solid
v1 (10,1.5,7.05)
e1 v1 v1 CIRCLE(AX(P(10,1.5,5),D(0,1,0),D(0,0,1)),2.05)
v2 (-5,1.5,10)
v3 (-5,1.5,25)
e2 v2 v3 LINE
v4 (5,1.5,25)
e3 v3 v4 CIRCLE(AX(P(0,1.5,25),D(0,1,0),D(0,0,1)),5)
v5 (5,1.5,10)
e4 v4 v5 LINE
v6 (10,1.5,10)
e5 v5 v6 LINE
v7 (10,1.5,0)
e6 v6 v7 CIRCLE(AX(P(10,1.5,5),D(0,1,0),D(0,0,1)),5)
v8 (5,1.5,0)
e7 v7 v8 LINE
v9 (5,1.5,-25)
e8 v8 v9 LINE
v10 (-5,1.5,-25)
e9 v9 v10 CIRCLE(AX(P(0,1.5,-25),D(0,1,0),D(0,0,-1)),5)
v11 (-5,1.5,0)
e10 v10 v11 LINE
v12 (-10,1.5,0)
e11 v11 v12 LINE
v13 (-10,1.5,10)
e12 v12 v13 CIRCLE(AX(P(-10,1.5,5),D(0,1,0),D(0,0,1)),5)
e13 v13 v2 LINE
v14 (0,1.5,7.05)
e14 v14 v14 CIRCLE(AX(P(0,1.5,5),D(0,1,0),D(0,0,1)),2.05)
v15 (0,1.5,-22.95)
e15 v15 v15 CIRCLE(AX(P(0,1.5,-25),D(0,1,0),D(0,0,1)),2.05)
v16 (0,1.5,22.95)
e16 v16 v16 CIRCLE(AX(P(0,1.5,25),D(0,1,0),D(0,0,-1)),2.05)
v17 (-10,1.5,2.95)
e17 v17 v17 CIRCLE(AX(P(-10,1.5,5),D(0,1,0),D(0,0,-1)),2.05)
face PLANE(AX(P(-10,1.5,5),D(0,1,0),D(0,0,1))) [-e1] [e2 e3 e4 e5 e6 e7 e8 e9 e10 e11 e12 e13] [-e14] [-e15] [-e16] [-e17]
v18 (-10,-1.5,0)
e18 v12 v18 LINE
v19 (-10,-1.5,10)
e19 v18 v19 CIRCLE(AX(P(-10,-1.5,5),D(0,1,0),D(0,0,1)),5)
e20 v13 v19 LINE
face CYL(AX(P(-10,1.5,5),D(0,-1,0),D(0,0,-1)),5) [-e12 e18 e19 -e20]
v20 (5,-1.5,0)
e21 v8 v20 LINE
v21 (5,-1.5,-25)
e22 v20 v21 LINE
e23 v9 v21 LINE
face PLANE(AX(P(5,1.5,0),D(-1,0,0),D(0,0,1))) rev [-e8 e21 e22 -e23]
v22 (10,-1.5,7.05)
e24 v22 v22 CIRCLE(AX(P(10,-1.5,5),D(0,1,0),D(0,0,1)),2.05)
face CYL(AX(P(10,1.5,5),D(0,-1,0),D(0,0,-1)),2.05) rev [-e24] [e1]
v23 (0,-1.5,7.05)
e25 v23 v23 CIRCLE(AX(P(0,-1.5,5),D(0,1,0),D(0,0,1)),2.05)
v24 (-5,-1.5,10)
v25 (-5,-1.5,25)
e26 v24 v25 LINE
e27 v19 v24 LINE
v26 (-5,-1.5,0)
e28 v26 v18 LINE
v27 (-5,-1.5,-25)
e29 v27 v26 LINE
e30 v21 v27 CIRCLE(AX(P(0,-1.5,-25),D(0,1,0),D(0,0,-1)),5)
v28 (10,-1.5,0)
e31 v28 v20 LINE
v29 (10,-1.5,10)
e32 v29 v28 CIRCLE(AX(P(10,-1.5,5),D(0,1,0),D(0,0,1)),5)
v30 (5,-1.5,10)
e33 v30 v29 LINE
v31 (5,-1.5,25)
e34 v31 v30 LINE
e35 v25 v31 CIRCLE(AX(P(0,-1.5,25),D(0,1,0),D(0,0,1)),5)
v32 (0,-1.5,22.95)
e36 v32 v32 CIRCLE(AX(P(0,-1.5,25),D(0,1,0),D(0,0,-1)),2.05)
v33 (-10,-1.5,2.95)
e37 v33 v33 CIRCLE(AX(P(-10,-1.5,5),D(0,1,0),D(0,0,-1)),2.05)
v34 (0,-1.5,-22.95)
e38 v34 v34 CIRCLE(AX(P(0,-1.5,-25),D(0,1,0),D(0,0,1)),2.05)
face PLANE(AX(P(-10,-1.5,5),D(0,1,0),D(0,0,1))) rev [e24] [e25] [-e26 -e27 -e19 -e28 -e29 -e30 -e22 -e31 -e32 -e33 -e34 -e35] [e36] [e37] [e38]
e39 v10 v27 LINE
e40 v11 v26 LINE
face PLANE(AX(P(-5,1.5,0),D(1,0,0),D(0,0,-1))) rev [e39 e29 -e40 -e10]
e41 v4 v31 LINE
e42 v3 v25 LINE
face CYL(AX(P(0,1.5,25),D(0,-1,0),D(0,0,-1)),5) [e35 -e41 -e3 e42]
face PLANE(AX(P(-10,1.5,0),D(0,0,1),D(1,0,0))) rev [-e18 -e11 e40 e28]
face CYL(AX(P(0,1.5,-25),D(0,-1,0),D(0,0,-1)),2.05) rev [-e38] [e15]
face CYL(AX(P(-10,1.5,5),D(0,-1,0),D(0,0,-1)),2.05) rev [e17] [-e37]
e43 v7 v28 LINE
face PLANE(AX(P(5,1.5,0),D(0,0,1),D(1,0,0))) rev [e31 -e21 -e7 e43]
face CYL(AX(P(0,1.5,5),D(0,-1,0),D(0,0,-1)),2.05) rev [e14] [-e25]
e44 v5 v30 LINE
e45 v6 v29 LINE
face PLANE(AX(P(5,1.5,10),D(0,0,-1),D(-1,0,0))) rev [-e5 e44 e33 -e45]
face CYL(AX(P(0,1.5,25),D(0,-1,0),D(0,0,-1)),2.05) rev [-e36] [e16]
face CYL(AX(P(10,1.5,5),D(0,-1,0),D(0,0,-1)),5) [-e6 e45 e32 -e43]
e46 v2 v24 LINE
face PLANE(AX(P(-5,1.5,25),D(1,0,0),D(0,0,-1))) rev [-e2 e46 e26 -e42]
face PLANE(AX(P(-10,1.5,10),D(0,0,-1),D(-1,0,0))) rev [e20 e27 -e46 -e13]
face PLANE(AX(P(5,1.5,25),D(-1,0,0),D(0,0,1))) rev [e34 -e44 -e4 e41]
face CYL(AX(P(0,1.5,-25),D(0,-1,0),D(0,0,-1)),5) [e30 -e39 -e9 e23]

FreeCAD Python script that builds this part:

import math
import FreeCAD as App
import Part
import Sketcher

doc = App.newDocument("Part")
body = doc.addObject("PartDesign::Body", "Body")

# Sketch on XZ plane
sketch1 = body.newObject("Sketcher::SketchObject", "Sketch")
sketch1.AttachmentSupport = (doc.getObject("XZ_Plane"), [""])
sketch1.MapMode = "FlatFace"
sketch1.addGeometry([
    Part.LineSegment(App.Vector(-5, 0, 0), App.Vector(-10, 0, 0)),  # 0
    Part.ArcOfCircle(Part.Circle(App.Vector(-10, 5, 0), App.Vector(0, 0, 1), 5), math.radians(90), math.radians(270)),  # 1
    Part.LineSegment(App.Vector(-10, 10, 0), App.Vector(-5, 10, 0)),  # 2
    Part.LineSegment(App.Vector(-5, 10, 0), App.Vector(-5, 25, 0)),  # 3
    Part.ArcOfCircle(Part.Circle(App.Vector(0, 25, 0), App.Vector(0, 0, 1), 5), math.radians(0), math.radians(180)),  # 4
    Part.LineSegment(App.Vector(5, 25, 0), App.Vector(5, 10, 0)),  # 5
    Part.LineSegment(App.Vector(5, 10, 0), App.Vector(10, 10, 0)),  # 6
    Part.ArcOfCircle(Part.Circle(App.Vector(10, 5, 0), App.Vector(0, 0, 1), 5), math.radians(-90), math.radians(90)),  # 7
    Part.LineSegment(App.Vector(10, 0, 0), App.Vector(5, 0, 0)),  # 8
    Part.LineSegment(App.Vector(5, 0, 0), App.Vector(5, -25, 0)),  # 9
    Part.ArcOfCircle(Part.Circle(App.Vector(0, -25, 0), App.Vector(0, 0, 1), 5), math.radians(180), math.radians(360)),  # 10
    Part.LineSegment(App.Vector(-5, -25, 0), App.Vector(-5, 0, 0)),  # 11
    Part.Circle(App.Vector(10, 5, 0), App.Vector(0, 0, 1), 2),  # 12
    Part.Circle(App.Vector(0, 25, 0), App.Vector(0, 0, 1), 2),  # 13
    Part.Circle(App.Vector(0, 5, 0), App.Vector(0, 0, 1), 2),  # 14
    Part.Circle(App.Vector(-10, 5, 0), App.Vector(0, 0, 1), 2),  # 15
    Part.Circle(App.Vector(0, -25, 0), App.Vector(0, 0, 1), 2),  # 16
], False)
sketch1.addConstraint([
    Sketcher.Constraint("Tangent", 0, 2, 1, 2),
    Sketcher.Constraint("Tangent", 1, 1, 2, 1),
    Sketcher.Constraint("Coincident", 2, 2, 3, 1),
    Sketcher.Constraint("Tangent", 3, 2, 4, 2),
    Sketcher.Constraint("Tangent", 4, 1, 5, 1),
    Sketcher.Constraint("Coincident", 5, 2, 6, 1),
    Sketcher.Constraint("Tangent", 6, 2, 7, 2),
    Sketcher.Constraint("Tangent", 7, 1, 8, 1),
    Sketcher.Constraint("Coincident", 8, 2, 9, 1),
    Sketcher.Constraint("Tangent", 9, 2, 10, 2),
    Sketcher.Constraint("Tangent", 10, 1, 11, 1),
    Sketcher.Constraint("Coincident", 11, 2, 0, 1),
    Sketcher.Constraint("Horizontal", 0),
    Sketcher.Constraint("Horizontal", 2),
    Sketcher.Constraint("Vertical", 3),
    Sketcher.Constraint("Vertical", 5),
    Sketcher.Constraint("Horizontal", 6),
    Sketcher.Constraint("Horizontal", 8),
    Sketcher.Constraint("Vertical", 9),
    Sketcher.Constraint("Vertical", 11),
    Sketcher.Constraint("Coincident", 12, 3, 7, 3),
    Sketcher.Constraint("Coincident", 13, 3, 4, 3),
    Sketcher.Constraint("Coincident", 15, 3, 1, 3),
    Sketcher.Constraint("Coincident", 16, 3, 10, 3),
    Sketcher.Constraint("Equal", 1, 4),
    Sketcher.Constraint("Equal", 4, 7),
    Sketcher.Constraint("Equal", 7, 10),
    Sketcher.Constraint("Equal", 12, 13),
    Sketcher.Constraint("Equal", 13, 14),
    Sketcher.Constraint("Equal", 14, 15),
    Sketcher.Constraint("Equal", 15, 16),
    Sketcher.Constraint("Symmetric", 4, 3, 10, 3, -1, 1),
    Sketcher.Constraint("Symmetric", 0, 2, 7, 1, -1, 1),
    Sketcher.Constraint("Symmetric", 2, 2, 5, 2, -2),
    Sketcher.Constraint("PointOnObject", 14, 3, -2),
    Sketcher.Constraint("Horizontal", 12, 3, 14, 3),
    Sketcher.Constraint("Radius", 1, 5.0),
    Sketcher.Constraint("Diameter", 12, 4.1),
    Sketcher.Constraint("DistanceX", 0, 2, 0, 1, 5.0),
    Sketcher.Constraint("DistanceY", 3, 1, 3, 2, 15.0),
])
pad1 = body.newObject("PartDesign::Pad", "Pad")
pad1.Profile = sketch1
pad1.Length = 3
pad1.Midplane = True

doc.recompute()
